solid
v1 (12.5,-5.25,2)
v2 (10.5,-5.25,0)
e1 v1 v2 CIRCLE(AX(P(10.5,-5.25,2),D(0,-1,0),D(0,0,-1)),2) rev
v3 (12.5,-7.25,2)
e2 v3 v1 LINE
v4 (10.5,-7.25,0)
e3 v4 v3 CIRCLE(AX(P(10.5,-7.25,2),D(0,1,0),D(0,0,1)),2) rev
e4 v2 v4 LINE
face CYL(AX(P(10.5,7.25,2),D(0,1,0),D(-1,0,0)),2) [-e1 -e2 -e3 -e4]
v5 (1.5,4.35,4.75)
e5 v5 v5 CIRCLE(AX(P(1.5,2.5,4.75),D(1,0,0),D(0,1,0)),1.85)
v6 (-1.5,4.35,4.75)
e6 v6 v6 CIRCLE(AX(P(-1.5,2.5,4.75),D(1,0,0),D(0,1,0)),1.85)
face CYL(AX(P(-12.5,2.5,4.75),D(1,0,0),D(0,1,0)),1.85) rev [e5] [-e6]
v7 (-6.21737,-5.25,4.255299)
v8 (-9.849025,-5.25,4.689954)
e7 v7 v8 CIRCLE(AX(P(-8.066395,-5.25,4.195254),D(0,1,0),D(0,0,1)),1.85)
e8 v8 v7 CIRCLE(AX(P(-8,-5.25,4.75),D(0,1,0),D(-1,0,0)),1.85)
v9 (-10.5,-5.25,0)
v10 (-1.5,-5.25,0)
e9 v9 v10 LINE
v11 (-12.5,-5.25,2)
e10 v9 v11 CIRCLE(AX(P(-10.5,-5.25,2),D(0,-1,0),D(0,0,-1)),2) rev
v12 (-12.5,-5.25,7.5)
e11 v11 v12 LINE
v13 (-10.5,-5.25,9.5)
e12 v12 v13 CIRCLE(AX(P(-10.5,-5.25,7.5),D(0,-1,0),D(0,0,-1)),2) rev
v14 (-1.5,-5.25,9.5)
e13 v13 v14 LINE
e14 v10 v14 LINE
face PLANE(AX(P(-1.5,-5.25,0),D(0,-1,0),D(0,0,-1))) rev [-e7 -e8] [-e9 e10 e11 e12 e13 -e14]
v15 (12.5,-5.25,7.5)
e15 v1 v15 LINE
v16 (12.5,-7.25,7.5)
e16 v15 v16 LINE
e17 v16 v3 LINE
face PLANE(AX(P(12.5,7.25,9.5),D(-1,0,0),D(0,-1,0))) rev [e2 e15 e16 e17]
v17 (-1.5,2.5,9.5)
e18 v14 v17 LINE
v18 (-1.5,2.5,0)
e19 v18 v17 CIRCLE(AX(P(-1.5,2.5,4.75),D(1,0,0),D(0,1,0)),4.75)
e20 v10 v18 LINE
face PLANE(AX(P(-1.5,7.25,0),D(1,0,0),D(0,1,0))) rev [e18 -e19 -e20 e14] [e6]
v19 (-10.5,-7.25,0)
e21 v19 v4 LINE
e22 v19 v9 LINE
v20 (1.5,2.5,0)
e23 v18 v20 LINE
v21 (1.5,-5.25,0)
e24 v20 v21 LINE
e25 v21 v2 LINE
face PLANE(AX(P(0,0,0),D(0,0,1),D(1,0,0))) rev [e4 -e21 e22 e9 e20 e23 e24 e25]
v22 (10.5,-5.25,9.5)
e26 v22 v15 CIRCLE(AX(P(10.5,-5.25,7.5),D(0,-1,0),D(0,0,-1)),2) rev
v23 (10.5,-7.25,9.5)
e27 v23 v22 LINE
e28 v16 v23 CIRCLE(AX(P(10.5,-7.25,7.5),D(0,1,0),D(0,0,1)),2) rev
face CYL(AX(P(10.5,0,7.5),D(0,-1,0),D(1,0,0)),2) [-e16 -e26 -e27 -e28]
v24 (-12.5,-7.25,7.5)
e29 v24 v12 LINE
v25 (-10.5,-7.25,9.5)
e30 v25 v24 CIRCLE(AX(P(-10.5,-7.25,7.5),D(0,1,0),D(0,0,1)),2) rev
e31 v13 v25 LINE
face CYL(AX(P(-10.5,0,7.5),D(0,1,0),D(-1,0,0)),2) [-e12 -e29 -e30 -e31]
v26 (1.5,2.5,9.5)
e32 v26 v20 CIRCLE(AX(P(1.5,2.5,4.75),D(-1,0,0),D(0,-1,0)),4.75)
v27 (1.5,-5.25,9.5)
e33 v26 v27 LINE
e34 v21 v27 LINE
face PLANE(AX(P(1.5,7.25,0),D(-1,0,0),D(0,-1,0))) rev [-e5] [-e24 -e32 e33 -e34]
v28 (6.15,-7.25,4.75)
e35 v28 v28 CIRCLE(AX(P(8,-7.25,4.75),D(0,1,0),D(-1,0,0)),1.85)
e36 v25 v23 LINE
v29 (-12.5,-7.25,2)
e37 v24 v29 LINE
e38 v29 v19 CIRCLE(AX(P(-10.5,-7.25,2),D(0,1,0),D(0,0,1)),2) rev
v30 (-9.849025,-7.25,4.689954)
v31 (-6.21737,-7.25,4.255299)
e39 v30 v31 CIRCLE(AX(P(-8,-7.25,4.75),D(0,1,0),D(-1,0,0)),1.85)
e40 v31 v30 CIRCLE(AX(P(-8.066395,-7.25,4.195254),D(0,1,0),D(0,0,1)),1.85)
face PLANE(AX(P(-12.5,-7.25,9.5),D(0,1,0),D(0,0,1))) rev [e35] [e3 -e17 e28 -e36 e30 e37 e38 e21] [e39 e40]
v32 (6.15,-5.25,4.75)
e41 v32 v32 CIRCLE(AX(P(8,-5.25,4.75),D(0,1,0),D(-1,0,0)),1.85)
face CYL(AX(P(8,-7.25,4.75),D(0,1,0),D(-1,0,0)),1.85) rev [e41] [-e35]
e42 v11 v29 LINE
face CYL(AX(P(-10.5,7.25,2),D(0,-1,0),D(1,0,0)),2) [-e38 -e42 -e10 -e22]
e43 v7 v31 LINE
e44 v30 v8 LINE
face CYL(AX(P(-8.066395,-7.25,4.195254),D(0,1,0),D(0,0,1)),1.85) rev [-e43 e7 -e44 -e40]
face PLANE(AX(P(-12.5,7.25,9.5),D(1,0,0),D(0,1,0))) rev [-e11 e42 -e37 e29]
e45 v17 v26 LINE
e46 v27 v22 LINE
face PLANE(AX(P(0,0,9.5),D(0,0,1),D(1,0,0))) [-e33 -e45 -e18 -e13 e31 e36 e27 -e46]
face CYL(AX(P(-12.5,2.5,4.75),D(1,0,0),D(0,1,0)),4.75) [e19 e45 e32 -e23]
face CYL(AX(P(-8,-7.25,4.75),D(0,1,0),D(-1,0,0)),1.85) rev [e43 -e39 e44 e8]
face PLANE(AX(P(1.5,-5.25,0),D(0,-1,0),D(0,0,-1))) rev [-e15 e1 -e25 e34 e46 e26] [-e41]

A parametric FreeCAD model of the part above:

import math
import FreeCAD as App
import Part
import Sketcher

V = App.Vector
Q = App.Units.Quantity


def edges_at(feature, points):
    """Names of the edges that pass closest to the given points."""
    edges = feature.Shape.Edges
    near = lambda p: min(range(len(edges)), key=lambda i: edges[i].distToShape(Part.Vertex(*p))[0])
    return sorted({f"Edge{near(p) + 1}" for p in points})

doc = App.newDocument("Part")
params = doc.addObject("Spreadsheet::Sheet", "Params")
for row, (alias, value) in enumerate([
    ("sketch1_width", "25 mm"),
    ("sketch1_height", "14.5 mm"),
    ("pad1_length", "9.5 mm"),
    ("sketch2_radius", "4.75 mm"),
    ("sketch2_width", "5.75 mm"),
    ("sketch3_width", "11 mm"),
    ("sketch3_height", "12.5 mm"),
    ("sketch4_diameter", "3.7 mm"),
    ("fillet_radius", "2 mm"),
    ("sketch5_diameter", "3.7 mm"),
    ("sketch6_diameter", "3.7 mm"),
], start=1):
    params.set(f"A{row}", alias)
    params.set(f"B{row}", "=" + value)
    params.setAlias(f"B{row}", alias)

body = doc.addObject("PartDesign::Body", "Body")

# Sketch on XY plane
sketch1 = doc.addObject("Sketcher::SketchObject", "Sketch")
body.addObject(sketch1)
sketch1.AttachmentSupport = (doc.XY_Plane, [""])
sketch1.MapMode = "FlatFace"
sketch1.addGeometry([
    Part.LineSegment(V(-12.5, 7.25, 0), V(-12.5, -7.25, 0)),
    Part.LineSegment(V(-12.5, -7.25, 0), V(12.5, -7.25, 0)),
    Part.LineSegment(V(12.5, -7.25, 0), V(12.5, 7.25, 0)),
    Part.LineSegment(V(12.5, 7.25, 0), V(-12.5, 7.25, 0)),
], False)
sketch1.addConstraint([
    Sketcher.Constraint("Coincident", 0, 2, 1, 1),
    Sketcher.Constraint("Coincident", 1, 2, 2, 1),
    Sketcher.Constraint("Coincident", 2, 2, 3, 1),
    Sketcher.Constraint("Coincident", 3, 2, 0, 1),
    Sketcher.Constraint("Vertical", 0),
    Sketcher.Constraint("Horizontal", 1),
    Sketcher.Constraint("Vertical", 2),
    Sketcher.Constraint("Horizontal", 3),
    Sketcher.Constraint("Symmetric", 0, 2, 2, 2, -1, 1),
    Sketcher.Constraint("DistanceX", 1, 1, 1, 2, Q("25 mm")),
    Sketcher.Constraint("DistanceY", 0, 2, 0, 1, Q("14.5 mm")),
])
sketch1.setExpression("Constraints[9]", "Params.sketch1_width")
sketch1.setExpression("Constraints[10]", "Params.sketch1_height")
pad1 = doc.addObject("PartDesign::Pad", "Pad")
body.addObject(pad1)
pad1.Profile = sketch1
pad1.setExpression("Length", "Params.pad1_length")

# Sketch on YZ plane
sketch2 = doc.addObject("Sketcher::SketchObject", "Sketch001")
body.addObject(sketch2)
sketch2.AttachmentSupport = (doc.YZ_Plane, [""])
sketch2.MapMode = "FlatFace"
sketch2.AttachmentOffset = App.Placement(V(0, 0, 12.5), App.Rotation())
sketch2.addGeometry([
    Part.LineSegment(V(8.25, 9.5, 0), V(2.5, 9.5, 0)),
    Part.ArcOfCircle(Part.Circle(V(2.5, 4.75, 0), V(0, 0, 1), 4.75), math.radians(-90), math.radians(90)),
    Part.LineSegment(V(2.5, 0, 0), V(8.25, 0, 0)),
    Part.LineSegment(V(8.25, 0, 0), V(8.25, 9.5, 0)),
], False)
sketch2.addConstraint([
    Sketcher.Constraint("Tangent", 0, 2, 1, 2),
    Sketcher.Constraint("Tangent", 1, 1, 2, 1),
    Sketcher.Constraint("Coincident", 2, 2, 3, 1),
    Sketcher.Constraint("Coincident", 3, 2, 0, 1),
    Sketcher.Constraint("Horizontal", 0),
    Sketcher.Constraint("Horizontal", 2),
    Sketcher.Constraint("Vertical", 3),
    Sketcher.Constraint("PointOnObject", 1, 1, -1),
    Sketcher.Constraint("Radius", 1, Q("4.75 mm")),
    Sketcher.Constraint("DistanceX", 0, 2, 0, 1, Q("5.75 mm")),
    Sketcher.Constraint("DistanceX", -1, 1, 1, 3, Q("2.5 mm")),
])
sketch2.setExpression("Constraints[8]", "Params.sketch2_radius")
sketch2.setExpression("Constraints[9]", "Params.sketch2_width")
pocket1 = doc.addObject("PartDesign::Pocket", "Pocket")
body.addObject(pocket1)
pocket1.Profile = sketch2
pocket1.Type = "ThroughAll"

# Sketch on XY plane
sketch3 = doc.addObject("Sketcher::SketchObject", "Sketch002")
body.addObject(sketch3)
sketch3.AttachmentSupport = (doc.XY_Plane, [""])
sketch3.MapMode = "FlatFace"
sketch3.AttachmentOffset = App.Placement(V(0, 0, 9.5), App.Rotation())
sketch3.addGeometry([
    Part.LineSegment(V(1.5, 7.25, 0), V(1.5, -5.25, 0)),  # 0
    Part.LineSegment(V(1.5, -5.25, 0), V(12.5, -5.25, 0)),  # 1
    Part.LineSegment(V(12.5, -5.25, 0), V(12.5, 7.25, 0)),  # 2
    Part.LineSegment(V(12.5, 7.25, 0), V(1.5, 7.25, 0)),  # 3
    Part.LineSegment(V(-12.5, 7.25, 0), V(-12.5, -5.25, 0)),  # 4
    Part.LineSegment(V(-12.5, -5.25, 0), V(-1.5, -5.25, 0)),  # 5
    Part.LineSegment(V(-1.5, -5.25, 0), V(-1.5, 7.25, 0)),  # 6
    Part.LineSegment(V(-1.5, 7.25, 0), V(-12.5, 7.25, 0)),  # 7
], False)
sketch3.addConstraint([
    Sketcher.Constraint("Coincident", 0, 2, 1, 1),
    Sketcher.Constraint("Coincident", 1, 2, 2, 1),
    Sketcher.Constraint("Coincident", 2, 2, 3, 1),
    Sketcher.Constraint("Coincident", 3, 2, 0, 1),
    Sketcher.Constraint("Coincident", 4, 2, 5, 1),
    Sketcher.Constraint("Coincident", 5, 2, 6, 1),
    Sketcher.Constraint("Coincident", 6, 2, 7, 1),
    Sketcher.Constraint("Coincident", 7, 2, 4, 1),
    Sketcher.Constraint("Vertical", 0),
    Sketcher.Constraint("Horizontal", 1),
    Sketcher.Constraint("Vertical", 2),
    Sketcher.Constraint("Horizontal", 3),
    Sketcher.Constraint("Vertical", 4),
    Sketcher.Constraint("Horizontal", 5),
    Sketcher.Constraint("Vertical", 6),
    Sketcher.Constraint("Horizontal", 7),
    Sketcher.Constraint("Symmetric", 1, 2, 4, 2, -2),
    Sketcher.Constraint("Symmetric", 3, 2, 6, 2, -2),
    Sketcher.Constraint("DistanceX", 1, 1, 1, 2, Q("11 mm")),
    Sketcher.Constraint("DistanceY", 0, 2, 0, 1, Q("12.5 mm")),
    Sketcher.Constraint("DistanceX", 4, 2, 0, 2, Q("14 mm")),
    Sketcher.Constraint("DistanceY", 0, 2, -1, 1, Q("5.25 mm")),
])
sketch3.setExpression("Constraints[18]", "Params.sketch3_width")
sketch3.setExpression("Constraints[19]", "Params.sketch3_height")
pocket2 = doc.addObject("PartDesign::Pocket", "Pocket001")
body.addObject(pocket2)
pocket2.Profile = sketch3
pocket2.Type = "ThroughAll"

# Sketch on YZ plane
sketch4 = doc.addObject("Sketcher::SketchObject", "Sketch003")
body.addObject(sketch4)
sketch4.AttachmentSupport = (doc.YZ_Plane, [""])
sketch4.MapMode = "FlatFace"
sketch4.AttachmentOffset = App.Placement(V(0, 0, 1.5), App.Rotation())
sketch4.addGeometry(Part.Circle(V(2.5, 4.75, 0), V(0, 0, 1), 1.85), False)
sketch4.addConstraint([
    Sketcher.Constraint("Diameter", 0, Q("3.7 mm")),
    Sketcher.Constraint("DistanceX", -1, 1, 0, 3, Q("2.5 mm")),
    Sketcher.Constraint("DistanceY", -1, 1, 0, 3, Q("4.75 mm")),
])
sketch4.setExpression("Constraints[0]", "Params.sketch4_diameter")
pocket3 = doc.addObject("PartDesign::Pocket", "Pocket002")
body.addObject(pocket3)
pocket3.Profile = sketch4
pocket3.Type = "ThroughAll"
doc.recompute()

fillet = doc.addObject("PartDesign::Fillet", "Fillet")
body.addObject(fillet)
fillet.Base = (pocket3, edges_at(pocket3, [
    (12.5, -6.25, 9.5),
    (12.5, -6.25, 0),
    (-12.5, -6.25, 9.5),
    (-12.5, -6.25, 0),
]))
fillet.setExpression("Radius", "Params.fillet_radius")

# Sketch on XZ plane
sketch5 = doc.addObject("Sketcher::SketchObject", "Sketch004")
body.addObject(sketch5)
sketch5.AttachmentSupport = (doc.XZ_Plane, [""])
sketch5.MapMode = "FlatFace"
sketch5.AttachmentOffset = App.Placement(V(0, 0, 5.25), App.Rotation())
sketch5.addGeometry([
    Part.Circle(V(-8, 4.75, 0), V(0, 0, 1), 1.85),
    Part.Circle(V(8, 4.75, 0), V(0, 0, 1), 1.85),
], False)
sketch5.addConstraint([
    Sketcher.Constraint("Equal", 0, 1),
    Sketcher.Constraint("Symmetric", 0, 3, 1, 3, -2),
    Sketcher.Constraint("Diameter", 0, Q("3.7 mm")),
    Sketcher.Constraint("DistanceX", 0, 3, -1, 1, Q("8 mm")),
    Sketcher.Constraint("DistanceY", -1, 1, 0, 3, Q("4.75 mm")),
])
sketch5.setExpression("Constraints[2]", "Params.sketch5_diameter")
pocket4 = doc.addObject("PartDesign::Pocket", "Pocket003")
body.addObject(pocket4)
pocket4.Profile = sketch5
pocket4.Type = "ThroughAll"
pocket4.Reversed = True

# Sketch on XZ plane
sketch6 = doc.addObject("Sketcher::SketchObject", "Sketch005")
body.addObject(sketch6)
sketch6.AttachmentSupport = (doc.XZ_Plane, [""])
sketch6.MapMode = "FlatFace"
sketch6.AttachmentOffset = App.Placement(V(0, 0, 5.25), App.Rotation())
sketch6.addGeometry(Part.Circle(V(-8.066395, 4.195254, 0), V(0, 0, 1), 1.85), False)
sketch6.addConstraint([
    Sketcher.Constraint("Diameter", 0, Q("3.7 mm")),
    Sketcher.Constraint("DistanceX", 0, 3, -1, 1, Q("8.066395 mm")),
    Sketcher.Constraint("DistanceY", -1, 1, 0, 3, Q("4.195254 mm")),
])
sketch6.setExpression("Constraints[0]", "Params.sketch6_diameter")
pocket5 = doc.addObject("PartDesign::Pocket", "Pocket004")
body.addObject(pocket5)
pocket5.Profile = sketch6
pocket5.Type = "ThroughAll"
pocket5.Reversed = True

doc.recompute()
